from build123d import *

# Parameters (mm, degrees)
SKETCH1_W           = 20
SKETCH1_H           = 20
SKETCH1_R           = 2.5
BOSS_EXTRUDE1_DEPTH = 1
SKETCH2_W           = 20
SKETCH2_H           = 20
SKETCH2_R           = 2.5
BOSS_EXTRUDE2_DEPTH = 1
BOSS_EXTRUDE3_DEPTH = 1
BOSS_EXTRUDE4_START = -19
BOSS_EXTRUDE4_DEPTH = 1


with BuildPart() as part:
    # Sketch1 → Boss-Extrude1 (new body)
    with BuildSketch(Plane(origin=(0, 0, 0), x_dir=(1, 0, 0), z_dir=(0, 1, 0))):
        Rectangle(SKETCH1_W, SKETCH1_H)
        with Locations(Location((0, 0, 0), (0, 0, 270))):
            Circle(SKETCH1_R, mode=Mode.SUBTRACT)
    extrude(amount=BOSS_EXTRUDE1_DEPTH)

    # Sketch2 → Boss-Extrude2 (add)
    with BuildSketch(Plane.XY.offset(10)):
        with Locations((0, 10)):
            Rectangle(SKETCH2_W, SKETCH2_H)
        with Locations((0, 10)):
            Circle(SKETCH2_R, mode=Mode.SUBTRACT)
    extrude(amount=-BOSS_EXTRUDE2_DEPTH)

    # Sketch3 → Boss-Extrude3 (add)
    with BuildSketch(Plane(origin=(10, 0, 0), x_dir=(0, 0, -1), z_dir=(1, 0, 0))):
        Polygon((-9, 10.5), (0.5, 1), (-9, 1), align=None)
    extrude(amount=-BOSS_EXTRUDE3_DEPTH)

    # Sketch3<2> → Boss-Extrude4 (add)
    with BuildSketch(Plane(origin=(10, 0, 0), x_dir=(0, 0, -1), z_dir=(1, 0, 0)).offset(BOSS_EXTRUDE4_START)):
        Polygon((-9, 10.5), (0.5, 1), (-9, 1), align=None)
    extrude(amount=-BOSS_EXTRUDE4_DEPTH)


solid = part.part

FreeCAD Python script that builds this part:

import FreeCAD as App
import Part
import Sketcher

doc = App.newDocument("Part")
body = doc.addObject("PartDesign::Body", "Body")

# Sketch on XZ plane
sketch1 = doc.addObject("Sketcher::SketchObject", "Sketch")
body.addObject(sketch1)
sketch1.AttachmentSupport = (doc.XZ_Plane, [""])
sketch1.MapMode = "FlatFace"
sketch1.addGeometry(Part.LineSegment(App.Vector(-10, -10, 0), App.Vector(-10, 10, 0)), False)
sketch1.addGeometry(Part.LineSegment(App.Vector(-10, 10, 0), App.Vector(10, 10, 0)), False)
sketch1.addGeometry(Part.LineSegment(App.Vector(10, 10, 0), App.Vector(10, -10, 0)), False)
sketch1.addGeometry(Part.LineSegment(App.Vector(10, -10, 0), App.Vector(-10, -10, 0)), False)
sketch1.addGeometry(Part.Circle(App.Vector(0, 0, 0), App.Vector(0, 0, 1), 2.5), False)
sketch1.addConstraint(Sketcher.Constraint("Coincident", 0, 2, 1, 1))
sketch1.addConstraint(Sketcher.Constraint("Coincident", 1, 2, 2, 1))
sketch1.addConstraint(Sketcher.Constraint("Coincident", 2, 2, 3, 1))
sketch1.addConstraint(Sketcher.Constraint("Coincident", 3, 2, 0, 1))
sketch1.addConstraint(Sketcher.Constraint("Vertical", 0))
sketch1.addConstraint(Sketcher.Constraint("Horizontal", 1))
sketch1.addConstraint(Sketcher.Constraint("Vertical", 2))
sketch1.addConstraint(Sketcher.Constraint("Horizontal", 3))
sketch1.addConstraint(Sketcher.Constraint("Coincident", 4, 3, -1, 1))
sketch1.addConstraint(Sketcher.Constraint("Symmetric", 0, 2, 2, 2, -1, 1))
sketch1.addConstraint(Sketcher.Constraint("Equal", 3, 0))
sketch1.addConstraint(Sketcher.Constraint("Diameter", 4, 5.0))
sketch1.addConstraint(Sketcher.Constraint("DistanceX", 1, 1, 1, 2, 20.0))
pad1 = doc.addObject("PartDesign::Pad", "Pad")
body.addObject(pad1)
pad1.Profile = sketch1
pad1.Length = 1
pad1.Reversed = True

# Sketch on XY plane
sketch2 = doc.addObject("Sketcher::SketchObject", "Sketch001")
body.addObject(sketch2)
sketch2.AttachmentSupport = (doc.XY_Plane, [""])
sketch2.MapMode = "FlatFace"
sketch2.AttachmentOffset = App.Placement(App.Vector(0, 0, 10), App.Rotation())
sketch2.addGeometry(Part.LineSegment(App.Vector(-10, 20, 0), App.Vector(-10, 0, 0)), False)
sketch2.addGeometry(Part.LineSegment(App.Vector(-10, 0, 0), App.Vector(10, 0, 0)), False)
sketch2.addGeometry(Part.LineSegment(App.Vector(10, 0, 0), App.Vector(10, 20, 0)), False)
sketch2.addGeometry(Part.LineSegment(App.Vector(10, 20, 0), App.Vector(-10, 20, 0)), False)
sketch2.addGeometry(Part.Circle(App.Vector(0, 10, 0), App.Vector(0, 0, 1), 2.5), False)
sketch2.addConstraint(Sketcher.Constraint("Coincident", 0, 2, 1, 1))
sketch2.addConstraint(Sketcher.Constraint("Coincident", 1, 2, 2, 1))
sketch2.addConstraint(Sketcher.Constraint("Coincident", 2, 2, 3, 1))
sketch2.addConstraint(Sketcher.Constraint("Coincident", 3, 2, 0, 1))
sketch2.addConstraint(Sketcher.Constraint("Vertical", 0))
sketch2.addConstraint(Sketcher.Constraint("Horizontal", 1))
sketch2.addConstraint(Sketcher.Constraint("Vertical", 2))
sketch2.addConstraint(Sketcher.Constraint("Horizontal", 3))
sketch2.addConstraint(Sketcher.Constraint("Symmetric", 0, 2, 1, 2, -1, 1))
sketch2.addConstraint(Sketcher.Constraint("PointOnObject", 4, 3, -2))
sketch2.addConstraint(Sketcher.Constraint("Equal", 3, 0))
sketch2.addConstraint(Sketcher.Constraint("Diameter", 4, 5.0))
sketch2.addConstraint(Sketcher.Constraint("DistanceX", 1, 1, 1, 2, 20.0))
sketch2.addConstraint(Sketcher.Constraint("DistanceY", -1, 1, 4, 3, 10.0))
pad2 = doc.addObject("PartDesign::Pad", "Pad001")
body.addObject(pad2)
pad2.Profile = sketch2
pad2.Length = 1
pad2.Reversed = True

# Sketch on YZ plane
sketch3 = doc.addObject("Sketcher::SketchObject", "Sketch002")
body.addObject(sketch3)
sketch3.AttachmentSupport = (doc.YZ_Plane, [""])
sketch3.MapMode = "FlatFace"
sketch3.AttachmentOffset = App.Placement(App.Vector(0, 0, 10), App.Rotation())
sketch3.addGeometry(Part.LineSegment(App.Vector(1, 0, 0), App.Vector(10, 9, 0)), False)
sketch3.addGeometry(Part.LineSegment(App.Vector(10, 9, 0), App.Vector(1, 9, 0)), False)
sketch3.addGeometry(Part.LineSegment(App.Vector(1, 9, 0), App.Vector(1, 0, 0)), False)
sketch3.addConstraint(Sketcher.Constraint("Coincident", 0, 2, 1, 1))
sketch3.addConstraint(Sketcher.Constraint("Coincident", 1, 2, 2, 1))
sketch3.addConstraint(Sketcher.Constraint("Coincident", 2, 2, 0, 1))
sketch3.addConstraint(Sketcher.Constraint("Horizontal", 1))
sketch3.addConstraint(Sketcher.Constraint("Vertical", 2))
sketch3.addConstraint(Sketcher.Constraint("Equal", 1, 2))
sketch3.addConstraint(Sketcher.Constraint("DistanceX", 1, 2, 1, 1, 9.5))
sketch3.addConstraint(Sketcher.Constraint("DistanceY", -1, 1, 0, 2, 9.0))
sketch3.addConstraint(Sketcher.Constraint("DistanceX", -1, 1, 1, 2, 1.0))
pad3 = doc.addObject("PartDesign::Pad", "Pad002")
body.addObject(pad3)
pad3.Profile = sketch3
pad3.Length = 1
pad3.Reversed = True

# Sketch on YZ plane
sketch4 = doc.addObject("Sketcher::SketchObject", "Sketch003")
body.addObject(sketch4)
sketch4.AttachmentSupport = (doc.YZ_Plane, [""])
sketch4.MapMode = "FlatFace"
sketch4.AttachmentOffset = App.Placement(App.Vector(0, 0, -9), App.Rotation())
sketch4.addGeometry(Part.LineSegment(App.Vector(1, 0, 0), App.Vector(10, 9, 0)), False)
sketch4.addGeometry(Part.LineSegment(App.Vector(10, 9, 0), App.Vector(1, 9, 0)), False)
sketch4.addGeometry(Part.LineSegment(App.Vector(1, 9, 0), App.Vector(1, 0, 0)), False)
sketch4.addConstraint(Sketcher.Constraint("Coincident", 0, 2, 1, 1))
sketch4.addConstraint(Sketcher.Constraint("Coincident", 1, 2, 2, 1))
sketch4.addConstraint(Sketcher.Constraint("Coincident", 2, 2, 0, 1))
sketch4.addConstraint(Sketcher.Constraint("Horizontal", 1))
sketch4.addConstraint(Sketcher.Constraint("Vertical", 2))
sketch4.addConstraint(Sketcher.Constraint("Equal", 1, 2))
sketch4.addConstraint(Sketcher.Constraint("DistanceX", 1, 2, 1, 1, 9.5))
sketch4.addConstraint(Sketcher.Constraint("DistanceY", -1, 1, 0, 2, 9.0))
sketch4.addConstraint(Sketcher.Constraint("DistanceX", -1, 1, 1, 2, 1.0))
pad4 = doc.addObject("PartDesign::Pad", "Pad003")
body.addObject(pad4)
pad4.Profile = sketch4
pad4.Length = 1
pad4.Reversed = True

doc.recompute()
